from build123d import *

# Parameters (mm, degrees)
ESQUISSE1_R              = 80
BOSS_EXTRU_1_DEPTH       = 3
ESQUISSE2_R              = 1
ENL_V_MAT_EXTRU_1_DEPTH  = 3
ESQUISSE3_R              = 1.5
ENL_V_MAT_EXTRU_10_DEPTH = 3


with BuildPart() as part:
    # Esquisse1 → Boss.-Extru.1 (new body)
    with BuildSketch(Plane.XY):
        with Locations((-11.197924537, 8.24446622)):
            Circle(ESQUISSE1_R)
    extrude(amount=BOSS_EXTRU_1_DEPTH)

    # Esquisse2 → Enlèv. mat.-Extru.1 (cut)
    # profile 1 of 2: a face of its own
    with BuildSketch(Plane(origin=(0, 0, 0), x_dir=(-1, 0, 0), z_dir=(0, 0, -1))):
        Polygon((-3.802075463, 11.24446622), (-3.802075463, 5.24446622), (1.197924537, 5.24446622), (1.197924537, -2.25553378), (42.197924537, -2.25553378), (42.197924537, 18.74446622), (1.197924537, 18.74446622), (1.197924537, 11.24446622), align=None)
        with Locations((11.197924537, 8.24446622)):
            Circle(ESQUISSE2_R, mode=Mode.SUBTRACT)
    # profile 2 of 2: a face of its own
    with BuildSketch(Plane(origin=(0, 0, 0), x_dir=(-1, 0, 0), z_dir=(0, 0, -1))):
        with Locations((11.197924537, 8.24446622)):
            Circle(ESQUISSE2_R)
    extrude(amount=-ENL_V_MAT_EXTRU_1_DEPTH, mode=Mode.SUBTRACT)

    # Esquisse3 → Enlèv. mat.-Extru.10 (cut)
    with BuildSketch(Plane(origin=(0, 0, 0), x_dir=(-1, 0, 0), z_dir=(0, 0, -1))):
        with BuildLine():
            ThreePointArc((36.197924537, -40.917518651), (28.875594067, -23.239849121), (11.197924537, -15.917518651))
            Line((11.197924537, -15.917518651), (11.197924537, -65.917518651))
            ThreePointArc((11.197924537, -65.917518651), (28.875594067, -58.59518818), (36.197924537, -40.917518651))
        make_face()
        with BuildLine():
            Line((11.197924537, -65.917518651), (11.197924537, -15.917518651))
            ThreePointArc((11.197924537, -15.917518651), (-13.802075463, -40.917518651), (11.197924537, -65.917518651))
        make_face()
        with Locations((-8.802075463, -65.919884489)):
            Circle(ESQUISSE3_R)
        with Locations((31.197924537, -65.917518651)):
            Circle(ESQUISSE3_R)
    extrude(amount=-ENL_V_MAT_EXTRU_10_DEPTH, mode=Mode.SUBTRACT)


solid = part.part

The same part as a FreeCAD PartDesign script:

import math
import FreeCAD as App
import Part
import Sketcher

V = App.Vector
Q = App.Units.Quantity


def add_polygon(sketch, points):
    """Adds a closed chain of lines whose ends are joined by coincident constraints."""
    first, n = sketch.GeometryCount, len(points)
    for a, b in zip(points, points[1:] + points[:1]):
        sketch.addGeometry(Part.LineSegment(App.Vector(*a, 0), App.Vector(*b, 0)), False)
    for i in range(n):
        sketch.addConstraint(Sketcher.Constraint("Coincident", first + i, 2, first + (i + 1) % n, 1))

doc = App.newDocument("Part")
body = doc.addObject("PartDesign::Body", "Body")

sketch1 = doc.addObject("Sketcher::SketchObject", "Sketch")
body.addObject(sketch1)
sketch1.AttachmentSupport = (doc.XY_Plane, [""])
sketch1.MapMode = "FlatFace"
sketch1.addGeometry(Part.Circle(V(-11, 8, 0), V(0, 0, 1), 80), False)
sketch1.addConstraint([
    Sketcher.Constraint("Diameter", 0, Q("160 mm")),
    Sketcher.Constraint("DistanceX", 0, 3, -1, 1, Q("11.197925 mm")),
    Sketcher.Constraint("DistanceY", -1, 1, 0, 3, Q("8.244466 mm")),
])
pad1 = doc.addObject("PartDesign::Pad", "Pad")
body.addObject(pad1)
pad1.Profile = sketch1
pad1.Length = 3

sketch2 = doc.addObject("Sketcher::SketchObject", "Sketch001")
body.addObject(sketch2)
sketch2.AttachmentSupport = (doc.XY_Plane, [""])
sketch2.MapMode = "FlatFace"
add_polygon(sketch2, [(4, 11), (4, 5), (-1, 5), (-1, -2), (-42, -2), (-42, 19), (-1, 19), (-1, 11)])
sketch2.addConstraint([
    Sketcher.Constraint("Vertical", 0),
    Sketcher.Constraint("Horizontal", 1),
    Sketcher.Constraint("Vertical", 2),
    Sketcher.Constraint("Horizontal", 3),
    Sketcher.Constraint("Vertical", 4),
    Sketcher.Constraint("Horizontal", 5),
    Sketcher.Constraint("Vertical", 6),
    Sketcher.Constraint("Horizontal", 7),
    Sketcher.Constraint("Vertical", 2, 2, 5, 2),
    Sketcher.Constraint("Equal", 2, 6),
    Sketcher.Constraint("DistanceX", 1, 2, 1, 1, Q("5 mm")),
    Sketcher.Constraint("DistanceX", 3, 2, 3, 1, Q("41 mm")),
    Sketcher.Constraint("DistanceY", 0, 2, 0, 1, Q("6 mm")),
    Sketcher.Constraint("DistanceY", 4, 1, 4, 2, Q("21 mm")),
    Sketcher.Constraint("DistanceX", -1, 1, 0, 2, Q("3.802075 mm")),
    Sketcher.Constraint("DistanceY", -1, 1, 0, 2, Q("5.244466 mm")),
])
pocket1 = doc.addObject("PartDesign::Pocket", "Pocket")
body.addObject(pocket1)
pocket1.Profile = sketch2
pocket1.Length = 3
pocket1.Reversed = True

sketch3 = doc.addObject("Sketcher::SketchObject", "Sketch002")
body.addObject(sketch3)
sketch3.AttachmentSupport = (doc.XY_Plane, [""])
sketch3.MapMode = "FlatFace"
sketch3.addGeometry([
    Part.ArcOfCircle(Part.Circle(V(-11.2, -40.9, 0), V(0, 0, 1), 25), math.radians(90), math.radians(180)),
    Part.ArcOfCircle(Part.Circle(V(-11.2, -40.9, 0), V(0, 0, 1), 25), math.radians(-90), math.radians(90)),
    Part.ArcOfCircle(Part.Circle(V(-11.2, -40.9, 0), V(0, 0, 1), 25), math.radians(-180), math.radians(-90)),
    Part.Circle(V(8.8, -65.9, 0), V(0, 0, 1), 1.5),
    Part.Circle(V(-31.2, -65.9, 0), V(0, 0, 1), 1.5),
], False)
sketch3.addConstraint([
    Sketcher.Constraint("Tangent", 0, 1, 1, 2),
    Sketcher.Constraint("Tangent", 1, 1, 2, 2),
    Sketcher.Constraint("Tangent", 2, 1, 0, 2),
    Sketcher.Constraint("Equal", 3, 4),
    Sketcher.Constraint("Horizontal", 4, 3, 1, 1),
    Sketcher.Constraint("Horizontal", 1, 3, 2, 1),
    Sketcher.Constraint("Vertical", 2, 3, 0, 1),
    Sketcher.Constraint("Vertical", 0, 1, 1, 1),
    Sketcher.Constraint("Diameter", 3, Q("3 mm")),
    Sketcher.Constraint("Radius", 0, Q("25 mm")),
    Sketcher.Constraint("DistanceX", 1, 3, 3, 3, Q("20 mm")),
    Sketcher.Constraint("DistanceX", 4, 3, 1, 3, Q("20 mm")),
    Sketcher.Constraint("DistanceY", 0, 3, -1, 1, Q("40.917519 mm")),
    Sketcher.Constraint("DistanceX", 0, 3, -1, 1, Q("11.197925 mm")),
    Sketcher.Constraint("DistanceY", 3, 3, -1, 1, Q("65.919884 mm")),
])
pocket2 = doc.addObject("PartDesign::Pocket", "Pocket001")
body.addObject(pocket2)
pocket2.Profile = sketch3
pocket2.Length = 3
pocket2.Reversed = True

doc.recompute()
